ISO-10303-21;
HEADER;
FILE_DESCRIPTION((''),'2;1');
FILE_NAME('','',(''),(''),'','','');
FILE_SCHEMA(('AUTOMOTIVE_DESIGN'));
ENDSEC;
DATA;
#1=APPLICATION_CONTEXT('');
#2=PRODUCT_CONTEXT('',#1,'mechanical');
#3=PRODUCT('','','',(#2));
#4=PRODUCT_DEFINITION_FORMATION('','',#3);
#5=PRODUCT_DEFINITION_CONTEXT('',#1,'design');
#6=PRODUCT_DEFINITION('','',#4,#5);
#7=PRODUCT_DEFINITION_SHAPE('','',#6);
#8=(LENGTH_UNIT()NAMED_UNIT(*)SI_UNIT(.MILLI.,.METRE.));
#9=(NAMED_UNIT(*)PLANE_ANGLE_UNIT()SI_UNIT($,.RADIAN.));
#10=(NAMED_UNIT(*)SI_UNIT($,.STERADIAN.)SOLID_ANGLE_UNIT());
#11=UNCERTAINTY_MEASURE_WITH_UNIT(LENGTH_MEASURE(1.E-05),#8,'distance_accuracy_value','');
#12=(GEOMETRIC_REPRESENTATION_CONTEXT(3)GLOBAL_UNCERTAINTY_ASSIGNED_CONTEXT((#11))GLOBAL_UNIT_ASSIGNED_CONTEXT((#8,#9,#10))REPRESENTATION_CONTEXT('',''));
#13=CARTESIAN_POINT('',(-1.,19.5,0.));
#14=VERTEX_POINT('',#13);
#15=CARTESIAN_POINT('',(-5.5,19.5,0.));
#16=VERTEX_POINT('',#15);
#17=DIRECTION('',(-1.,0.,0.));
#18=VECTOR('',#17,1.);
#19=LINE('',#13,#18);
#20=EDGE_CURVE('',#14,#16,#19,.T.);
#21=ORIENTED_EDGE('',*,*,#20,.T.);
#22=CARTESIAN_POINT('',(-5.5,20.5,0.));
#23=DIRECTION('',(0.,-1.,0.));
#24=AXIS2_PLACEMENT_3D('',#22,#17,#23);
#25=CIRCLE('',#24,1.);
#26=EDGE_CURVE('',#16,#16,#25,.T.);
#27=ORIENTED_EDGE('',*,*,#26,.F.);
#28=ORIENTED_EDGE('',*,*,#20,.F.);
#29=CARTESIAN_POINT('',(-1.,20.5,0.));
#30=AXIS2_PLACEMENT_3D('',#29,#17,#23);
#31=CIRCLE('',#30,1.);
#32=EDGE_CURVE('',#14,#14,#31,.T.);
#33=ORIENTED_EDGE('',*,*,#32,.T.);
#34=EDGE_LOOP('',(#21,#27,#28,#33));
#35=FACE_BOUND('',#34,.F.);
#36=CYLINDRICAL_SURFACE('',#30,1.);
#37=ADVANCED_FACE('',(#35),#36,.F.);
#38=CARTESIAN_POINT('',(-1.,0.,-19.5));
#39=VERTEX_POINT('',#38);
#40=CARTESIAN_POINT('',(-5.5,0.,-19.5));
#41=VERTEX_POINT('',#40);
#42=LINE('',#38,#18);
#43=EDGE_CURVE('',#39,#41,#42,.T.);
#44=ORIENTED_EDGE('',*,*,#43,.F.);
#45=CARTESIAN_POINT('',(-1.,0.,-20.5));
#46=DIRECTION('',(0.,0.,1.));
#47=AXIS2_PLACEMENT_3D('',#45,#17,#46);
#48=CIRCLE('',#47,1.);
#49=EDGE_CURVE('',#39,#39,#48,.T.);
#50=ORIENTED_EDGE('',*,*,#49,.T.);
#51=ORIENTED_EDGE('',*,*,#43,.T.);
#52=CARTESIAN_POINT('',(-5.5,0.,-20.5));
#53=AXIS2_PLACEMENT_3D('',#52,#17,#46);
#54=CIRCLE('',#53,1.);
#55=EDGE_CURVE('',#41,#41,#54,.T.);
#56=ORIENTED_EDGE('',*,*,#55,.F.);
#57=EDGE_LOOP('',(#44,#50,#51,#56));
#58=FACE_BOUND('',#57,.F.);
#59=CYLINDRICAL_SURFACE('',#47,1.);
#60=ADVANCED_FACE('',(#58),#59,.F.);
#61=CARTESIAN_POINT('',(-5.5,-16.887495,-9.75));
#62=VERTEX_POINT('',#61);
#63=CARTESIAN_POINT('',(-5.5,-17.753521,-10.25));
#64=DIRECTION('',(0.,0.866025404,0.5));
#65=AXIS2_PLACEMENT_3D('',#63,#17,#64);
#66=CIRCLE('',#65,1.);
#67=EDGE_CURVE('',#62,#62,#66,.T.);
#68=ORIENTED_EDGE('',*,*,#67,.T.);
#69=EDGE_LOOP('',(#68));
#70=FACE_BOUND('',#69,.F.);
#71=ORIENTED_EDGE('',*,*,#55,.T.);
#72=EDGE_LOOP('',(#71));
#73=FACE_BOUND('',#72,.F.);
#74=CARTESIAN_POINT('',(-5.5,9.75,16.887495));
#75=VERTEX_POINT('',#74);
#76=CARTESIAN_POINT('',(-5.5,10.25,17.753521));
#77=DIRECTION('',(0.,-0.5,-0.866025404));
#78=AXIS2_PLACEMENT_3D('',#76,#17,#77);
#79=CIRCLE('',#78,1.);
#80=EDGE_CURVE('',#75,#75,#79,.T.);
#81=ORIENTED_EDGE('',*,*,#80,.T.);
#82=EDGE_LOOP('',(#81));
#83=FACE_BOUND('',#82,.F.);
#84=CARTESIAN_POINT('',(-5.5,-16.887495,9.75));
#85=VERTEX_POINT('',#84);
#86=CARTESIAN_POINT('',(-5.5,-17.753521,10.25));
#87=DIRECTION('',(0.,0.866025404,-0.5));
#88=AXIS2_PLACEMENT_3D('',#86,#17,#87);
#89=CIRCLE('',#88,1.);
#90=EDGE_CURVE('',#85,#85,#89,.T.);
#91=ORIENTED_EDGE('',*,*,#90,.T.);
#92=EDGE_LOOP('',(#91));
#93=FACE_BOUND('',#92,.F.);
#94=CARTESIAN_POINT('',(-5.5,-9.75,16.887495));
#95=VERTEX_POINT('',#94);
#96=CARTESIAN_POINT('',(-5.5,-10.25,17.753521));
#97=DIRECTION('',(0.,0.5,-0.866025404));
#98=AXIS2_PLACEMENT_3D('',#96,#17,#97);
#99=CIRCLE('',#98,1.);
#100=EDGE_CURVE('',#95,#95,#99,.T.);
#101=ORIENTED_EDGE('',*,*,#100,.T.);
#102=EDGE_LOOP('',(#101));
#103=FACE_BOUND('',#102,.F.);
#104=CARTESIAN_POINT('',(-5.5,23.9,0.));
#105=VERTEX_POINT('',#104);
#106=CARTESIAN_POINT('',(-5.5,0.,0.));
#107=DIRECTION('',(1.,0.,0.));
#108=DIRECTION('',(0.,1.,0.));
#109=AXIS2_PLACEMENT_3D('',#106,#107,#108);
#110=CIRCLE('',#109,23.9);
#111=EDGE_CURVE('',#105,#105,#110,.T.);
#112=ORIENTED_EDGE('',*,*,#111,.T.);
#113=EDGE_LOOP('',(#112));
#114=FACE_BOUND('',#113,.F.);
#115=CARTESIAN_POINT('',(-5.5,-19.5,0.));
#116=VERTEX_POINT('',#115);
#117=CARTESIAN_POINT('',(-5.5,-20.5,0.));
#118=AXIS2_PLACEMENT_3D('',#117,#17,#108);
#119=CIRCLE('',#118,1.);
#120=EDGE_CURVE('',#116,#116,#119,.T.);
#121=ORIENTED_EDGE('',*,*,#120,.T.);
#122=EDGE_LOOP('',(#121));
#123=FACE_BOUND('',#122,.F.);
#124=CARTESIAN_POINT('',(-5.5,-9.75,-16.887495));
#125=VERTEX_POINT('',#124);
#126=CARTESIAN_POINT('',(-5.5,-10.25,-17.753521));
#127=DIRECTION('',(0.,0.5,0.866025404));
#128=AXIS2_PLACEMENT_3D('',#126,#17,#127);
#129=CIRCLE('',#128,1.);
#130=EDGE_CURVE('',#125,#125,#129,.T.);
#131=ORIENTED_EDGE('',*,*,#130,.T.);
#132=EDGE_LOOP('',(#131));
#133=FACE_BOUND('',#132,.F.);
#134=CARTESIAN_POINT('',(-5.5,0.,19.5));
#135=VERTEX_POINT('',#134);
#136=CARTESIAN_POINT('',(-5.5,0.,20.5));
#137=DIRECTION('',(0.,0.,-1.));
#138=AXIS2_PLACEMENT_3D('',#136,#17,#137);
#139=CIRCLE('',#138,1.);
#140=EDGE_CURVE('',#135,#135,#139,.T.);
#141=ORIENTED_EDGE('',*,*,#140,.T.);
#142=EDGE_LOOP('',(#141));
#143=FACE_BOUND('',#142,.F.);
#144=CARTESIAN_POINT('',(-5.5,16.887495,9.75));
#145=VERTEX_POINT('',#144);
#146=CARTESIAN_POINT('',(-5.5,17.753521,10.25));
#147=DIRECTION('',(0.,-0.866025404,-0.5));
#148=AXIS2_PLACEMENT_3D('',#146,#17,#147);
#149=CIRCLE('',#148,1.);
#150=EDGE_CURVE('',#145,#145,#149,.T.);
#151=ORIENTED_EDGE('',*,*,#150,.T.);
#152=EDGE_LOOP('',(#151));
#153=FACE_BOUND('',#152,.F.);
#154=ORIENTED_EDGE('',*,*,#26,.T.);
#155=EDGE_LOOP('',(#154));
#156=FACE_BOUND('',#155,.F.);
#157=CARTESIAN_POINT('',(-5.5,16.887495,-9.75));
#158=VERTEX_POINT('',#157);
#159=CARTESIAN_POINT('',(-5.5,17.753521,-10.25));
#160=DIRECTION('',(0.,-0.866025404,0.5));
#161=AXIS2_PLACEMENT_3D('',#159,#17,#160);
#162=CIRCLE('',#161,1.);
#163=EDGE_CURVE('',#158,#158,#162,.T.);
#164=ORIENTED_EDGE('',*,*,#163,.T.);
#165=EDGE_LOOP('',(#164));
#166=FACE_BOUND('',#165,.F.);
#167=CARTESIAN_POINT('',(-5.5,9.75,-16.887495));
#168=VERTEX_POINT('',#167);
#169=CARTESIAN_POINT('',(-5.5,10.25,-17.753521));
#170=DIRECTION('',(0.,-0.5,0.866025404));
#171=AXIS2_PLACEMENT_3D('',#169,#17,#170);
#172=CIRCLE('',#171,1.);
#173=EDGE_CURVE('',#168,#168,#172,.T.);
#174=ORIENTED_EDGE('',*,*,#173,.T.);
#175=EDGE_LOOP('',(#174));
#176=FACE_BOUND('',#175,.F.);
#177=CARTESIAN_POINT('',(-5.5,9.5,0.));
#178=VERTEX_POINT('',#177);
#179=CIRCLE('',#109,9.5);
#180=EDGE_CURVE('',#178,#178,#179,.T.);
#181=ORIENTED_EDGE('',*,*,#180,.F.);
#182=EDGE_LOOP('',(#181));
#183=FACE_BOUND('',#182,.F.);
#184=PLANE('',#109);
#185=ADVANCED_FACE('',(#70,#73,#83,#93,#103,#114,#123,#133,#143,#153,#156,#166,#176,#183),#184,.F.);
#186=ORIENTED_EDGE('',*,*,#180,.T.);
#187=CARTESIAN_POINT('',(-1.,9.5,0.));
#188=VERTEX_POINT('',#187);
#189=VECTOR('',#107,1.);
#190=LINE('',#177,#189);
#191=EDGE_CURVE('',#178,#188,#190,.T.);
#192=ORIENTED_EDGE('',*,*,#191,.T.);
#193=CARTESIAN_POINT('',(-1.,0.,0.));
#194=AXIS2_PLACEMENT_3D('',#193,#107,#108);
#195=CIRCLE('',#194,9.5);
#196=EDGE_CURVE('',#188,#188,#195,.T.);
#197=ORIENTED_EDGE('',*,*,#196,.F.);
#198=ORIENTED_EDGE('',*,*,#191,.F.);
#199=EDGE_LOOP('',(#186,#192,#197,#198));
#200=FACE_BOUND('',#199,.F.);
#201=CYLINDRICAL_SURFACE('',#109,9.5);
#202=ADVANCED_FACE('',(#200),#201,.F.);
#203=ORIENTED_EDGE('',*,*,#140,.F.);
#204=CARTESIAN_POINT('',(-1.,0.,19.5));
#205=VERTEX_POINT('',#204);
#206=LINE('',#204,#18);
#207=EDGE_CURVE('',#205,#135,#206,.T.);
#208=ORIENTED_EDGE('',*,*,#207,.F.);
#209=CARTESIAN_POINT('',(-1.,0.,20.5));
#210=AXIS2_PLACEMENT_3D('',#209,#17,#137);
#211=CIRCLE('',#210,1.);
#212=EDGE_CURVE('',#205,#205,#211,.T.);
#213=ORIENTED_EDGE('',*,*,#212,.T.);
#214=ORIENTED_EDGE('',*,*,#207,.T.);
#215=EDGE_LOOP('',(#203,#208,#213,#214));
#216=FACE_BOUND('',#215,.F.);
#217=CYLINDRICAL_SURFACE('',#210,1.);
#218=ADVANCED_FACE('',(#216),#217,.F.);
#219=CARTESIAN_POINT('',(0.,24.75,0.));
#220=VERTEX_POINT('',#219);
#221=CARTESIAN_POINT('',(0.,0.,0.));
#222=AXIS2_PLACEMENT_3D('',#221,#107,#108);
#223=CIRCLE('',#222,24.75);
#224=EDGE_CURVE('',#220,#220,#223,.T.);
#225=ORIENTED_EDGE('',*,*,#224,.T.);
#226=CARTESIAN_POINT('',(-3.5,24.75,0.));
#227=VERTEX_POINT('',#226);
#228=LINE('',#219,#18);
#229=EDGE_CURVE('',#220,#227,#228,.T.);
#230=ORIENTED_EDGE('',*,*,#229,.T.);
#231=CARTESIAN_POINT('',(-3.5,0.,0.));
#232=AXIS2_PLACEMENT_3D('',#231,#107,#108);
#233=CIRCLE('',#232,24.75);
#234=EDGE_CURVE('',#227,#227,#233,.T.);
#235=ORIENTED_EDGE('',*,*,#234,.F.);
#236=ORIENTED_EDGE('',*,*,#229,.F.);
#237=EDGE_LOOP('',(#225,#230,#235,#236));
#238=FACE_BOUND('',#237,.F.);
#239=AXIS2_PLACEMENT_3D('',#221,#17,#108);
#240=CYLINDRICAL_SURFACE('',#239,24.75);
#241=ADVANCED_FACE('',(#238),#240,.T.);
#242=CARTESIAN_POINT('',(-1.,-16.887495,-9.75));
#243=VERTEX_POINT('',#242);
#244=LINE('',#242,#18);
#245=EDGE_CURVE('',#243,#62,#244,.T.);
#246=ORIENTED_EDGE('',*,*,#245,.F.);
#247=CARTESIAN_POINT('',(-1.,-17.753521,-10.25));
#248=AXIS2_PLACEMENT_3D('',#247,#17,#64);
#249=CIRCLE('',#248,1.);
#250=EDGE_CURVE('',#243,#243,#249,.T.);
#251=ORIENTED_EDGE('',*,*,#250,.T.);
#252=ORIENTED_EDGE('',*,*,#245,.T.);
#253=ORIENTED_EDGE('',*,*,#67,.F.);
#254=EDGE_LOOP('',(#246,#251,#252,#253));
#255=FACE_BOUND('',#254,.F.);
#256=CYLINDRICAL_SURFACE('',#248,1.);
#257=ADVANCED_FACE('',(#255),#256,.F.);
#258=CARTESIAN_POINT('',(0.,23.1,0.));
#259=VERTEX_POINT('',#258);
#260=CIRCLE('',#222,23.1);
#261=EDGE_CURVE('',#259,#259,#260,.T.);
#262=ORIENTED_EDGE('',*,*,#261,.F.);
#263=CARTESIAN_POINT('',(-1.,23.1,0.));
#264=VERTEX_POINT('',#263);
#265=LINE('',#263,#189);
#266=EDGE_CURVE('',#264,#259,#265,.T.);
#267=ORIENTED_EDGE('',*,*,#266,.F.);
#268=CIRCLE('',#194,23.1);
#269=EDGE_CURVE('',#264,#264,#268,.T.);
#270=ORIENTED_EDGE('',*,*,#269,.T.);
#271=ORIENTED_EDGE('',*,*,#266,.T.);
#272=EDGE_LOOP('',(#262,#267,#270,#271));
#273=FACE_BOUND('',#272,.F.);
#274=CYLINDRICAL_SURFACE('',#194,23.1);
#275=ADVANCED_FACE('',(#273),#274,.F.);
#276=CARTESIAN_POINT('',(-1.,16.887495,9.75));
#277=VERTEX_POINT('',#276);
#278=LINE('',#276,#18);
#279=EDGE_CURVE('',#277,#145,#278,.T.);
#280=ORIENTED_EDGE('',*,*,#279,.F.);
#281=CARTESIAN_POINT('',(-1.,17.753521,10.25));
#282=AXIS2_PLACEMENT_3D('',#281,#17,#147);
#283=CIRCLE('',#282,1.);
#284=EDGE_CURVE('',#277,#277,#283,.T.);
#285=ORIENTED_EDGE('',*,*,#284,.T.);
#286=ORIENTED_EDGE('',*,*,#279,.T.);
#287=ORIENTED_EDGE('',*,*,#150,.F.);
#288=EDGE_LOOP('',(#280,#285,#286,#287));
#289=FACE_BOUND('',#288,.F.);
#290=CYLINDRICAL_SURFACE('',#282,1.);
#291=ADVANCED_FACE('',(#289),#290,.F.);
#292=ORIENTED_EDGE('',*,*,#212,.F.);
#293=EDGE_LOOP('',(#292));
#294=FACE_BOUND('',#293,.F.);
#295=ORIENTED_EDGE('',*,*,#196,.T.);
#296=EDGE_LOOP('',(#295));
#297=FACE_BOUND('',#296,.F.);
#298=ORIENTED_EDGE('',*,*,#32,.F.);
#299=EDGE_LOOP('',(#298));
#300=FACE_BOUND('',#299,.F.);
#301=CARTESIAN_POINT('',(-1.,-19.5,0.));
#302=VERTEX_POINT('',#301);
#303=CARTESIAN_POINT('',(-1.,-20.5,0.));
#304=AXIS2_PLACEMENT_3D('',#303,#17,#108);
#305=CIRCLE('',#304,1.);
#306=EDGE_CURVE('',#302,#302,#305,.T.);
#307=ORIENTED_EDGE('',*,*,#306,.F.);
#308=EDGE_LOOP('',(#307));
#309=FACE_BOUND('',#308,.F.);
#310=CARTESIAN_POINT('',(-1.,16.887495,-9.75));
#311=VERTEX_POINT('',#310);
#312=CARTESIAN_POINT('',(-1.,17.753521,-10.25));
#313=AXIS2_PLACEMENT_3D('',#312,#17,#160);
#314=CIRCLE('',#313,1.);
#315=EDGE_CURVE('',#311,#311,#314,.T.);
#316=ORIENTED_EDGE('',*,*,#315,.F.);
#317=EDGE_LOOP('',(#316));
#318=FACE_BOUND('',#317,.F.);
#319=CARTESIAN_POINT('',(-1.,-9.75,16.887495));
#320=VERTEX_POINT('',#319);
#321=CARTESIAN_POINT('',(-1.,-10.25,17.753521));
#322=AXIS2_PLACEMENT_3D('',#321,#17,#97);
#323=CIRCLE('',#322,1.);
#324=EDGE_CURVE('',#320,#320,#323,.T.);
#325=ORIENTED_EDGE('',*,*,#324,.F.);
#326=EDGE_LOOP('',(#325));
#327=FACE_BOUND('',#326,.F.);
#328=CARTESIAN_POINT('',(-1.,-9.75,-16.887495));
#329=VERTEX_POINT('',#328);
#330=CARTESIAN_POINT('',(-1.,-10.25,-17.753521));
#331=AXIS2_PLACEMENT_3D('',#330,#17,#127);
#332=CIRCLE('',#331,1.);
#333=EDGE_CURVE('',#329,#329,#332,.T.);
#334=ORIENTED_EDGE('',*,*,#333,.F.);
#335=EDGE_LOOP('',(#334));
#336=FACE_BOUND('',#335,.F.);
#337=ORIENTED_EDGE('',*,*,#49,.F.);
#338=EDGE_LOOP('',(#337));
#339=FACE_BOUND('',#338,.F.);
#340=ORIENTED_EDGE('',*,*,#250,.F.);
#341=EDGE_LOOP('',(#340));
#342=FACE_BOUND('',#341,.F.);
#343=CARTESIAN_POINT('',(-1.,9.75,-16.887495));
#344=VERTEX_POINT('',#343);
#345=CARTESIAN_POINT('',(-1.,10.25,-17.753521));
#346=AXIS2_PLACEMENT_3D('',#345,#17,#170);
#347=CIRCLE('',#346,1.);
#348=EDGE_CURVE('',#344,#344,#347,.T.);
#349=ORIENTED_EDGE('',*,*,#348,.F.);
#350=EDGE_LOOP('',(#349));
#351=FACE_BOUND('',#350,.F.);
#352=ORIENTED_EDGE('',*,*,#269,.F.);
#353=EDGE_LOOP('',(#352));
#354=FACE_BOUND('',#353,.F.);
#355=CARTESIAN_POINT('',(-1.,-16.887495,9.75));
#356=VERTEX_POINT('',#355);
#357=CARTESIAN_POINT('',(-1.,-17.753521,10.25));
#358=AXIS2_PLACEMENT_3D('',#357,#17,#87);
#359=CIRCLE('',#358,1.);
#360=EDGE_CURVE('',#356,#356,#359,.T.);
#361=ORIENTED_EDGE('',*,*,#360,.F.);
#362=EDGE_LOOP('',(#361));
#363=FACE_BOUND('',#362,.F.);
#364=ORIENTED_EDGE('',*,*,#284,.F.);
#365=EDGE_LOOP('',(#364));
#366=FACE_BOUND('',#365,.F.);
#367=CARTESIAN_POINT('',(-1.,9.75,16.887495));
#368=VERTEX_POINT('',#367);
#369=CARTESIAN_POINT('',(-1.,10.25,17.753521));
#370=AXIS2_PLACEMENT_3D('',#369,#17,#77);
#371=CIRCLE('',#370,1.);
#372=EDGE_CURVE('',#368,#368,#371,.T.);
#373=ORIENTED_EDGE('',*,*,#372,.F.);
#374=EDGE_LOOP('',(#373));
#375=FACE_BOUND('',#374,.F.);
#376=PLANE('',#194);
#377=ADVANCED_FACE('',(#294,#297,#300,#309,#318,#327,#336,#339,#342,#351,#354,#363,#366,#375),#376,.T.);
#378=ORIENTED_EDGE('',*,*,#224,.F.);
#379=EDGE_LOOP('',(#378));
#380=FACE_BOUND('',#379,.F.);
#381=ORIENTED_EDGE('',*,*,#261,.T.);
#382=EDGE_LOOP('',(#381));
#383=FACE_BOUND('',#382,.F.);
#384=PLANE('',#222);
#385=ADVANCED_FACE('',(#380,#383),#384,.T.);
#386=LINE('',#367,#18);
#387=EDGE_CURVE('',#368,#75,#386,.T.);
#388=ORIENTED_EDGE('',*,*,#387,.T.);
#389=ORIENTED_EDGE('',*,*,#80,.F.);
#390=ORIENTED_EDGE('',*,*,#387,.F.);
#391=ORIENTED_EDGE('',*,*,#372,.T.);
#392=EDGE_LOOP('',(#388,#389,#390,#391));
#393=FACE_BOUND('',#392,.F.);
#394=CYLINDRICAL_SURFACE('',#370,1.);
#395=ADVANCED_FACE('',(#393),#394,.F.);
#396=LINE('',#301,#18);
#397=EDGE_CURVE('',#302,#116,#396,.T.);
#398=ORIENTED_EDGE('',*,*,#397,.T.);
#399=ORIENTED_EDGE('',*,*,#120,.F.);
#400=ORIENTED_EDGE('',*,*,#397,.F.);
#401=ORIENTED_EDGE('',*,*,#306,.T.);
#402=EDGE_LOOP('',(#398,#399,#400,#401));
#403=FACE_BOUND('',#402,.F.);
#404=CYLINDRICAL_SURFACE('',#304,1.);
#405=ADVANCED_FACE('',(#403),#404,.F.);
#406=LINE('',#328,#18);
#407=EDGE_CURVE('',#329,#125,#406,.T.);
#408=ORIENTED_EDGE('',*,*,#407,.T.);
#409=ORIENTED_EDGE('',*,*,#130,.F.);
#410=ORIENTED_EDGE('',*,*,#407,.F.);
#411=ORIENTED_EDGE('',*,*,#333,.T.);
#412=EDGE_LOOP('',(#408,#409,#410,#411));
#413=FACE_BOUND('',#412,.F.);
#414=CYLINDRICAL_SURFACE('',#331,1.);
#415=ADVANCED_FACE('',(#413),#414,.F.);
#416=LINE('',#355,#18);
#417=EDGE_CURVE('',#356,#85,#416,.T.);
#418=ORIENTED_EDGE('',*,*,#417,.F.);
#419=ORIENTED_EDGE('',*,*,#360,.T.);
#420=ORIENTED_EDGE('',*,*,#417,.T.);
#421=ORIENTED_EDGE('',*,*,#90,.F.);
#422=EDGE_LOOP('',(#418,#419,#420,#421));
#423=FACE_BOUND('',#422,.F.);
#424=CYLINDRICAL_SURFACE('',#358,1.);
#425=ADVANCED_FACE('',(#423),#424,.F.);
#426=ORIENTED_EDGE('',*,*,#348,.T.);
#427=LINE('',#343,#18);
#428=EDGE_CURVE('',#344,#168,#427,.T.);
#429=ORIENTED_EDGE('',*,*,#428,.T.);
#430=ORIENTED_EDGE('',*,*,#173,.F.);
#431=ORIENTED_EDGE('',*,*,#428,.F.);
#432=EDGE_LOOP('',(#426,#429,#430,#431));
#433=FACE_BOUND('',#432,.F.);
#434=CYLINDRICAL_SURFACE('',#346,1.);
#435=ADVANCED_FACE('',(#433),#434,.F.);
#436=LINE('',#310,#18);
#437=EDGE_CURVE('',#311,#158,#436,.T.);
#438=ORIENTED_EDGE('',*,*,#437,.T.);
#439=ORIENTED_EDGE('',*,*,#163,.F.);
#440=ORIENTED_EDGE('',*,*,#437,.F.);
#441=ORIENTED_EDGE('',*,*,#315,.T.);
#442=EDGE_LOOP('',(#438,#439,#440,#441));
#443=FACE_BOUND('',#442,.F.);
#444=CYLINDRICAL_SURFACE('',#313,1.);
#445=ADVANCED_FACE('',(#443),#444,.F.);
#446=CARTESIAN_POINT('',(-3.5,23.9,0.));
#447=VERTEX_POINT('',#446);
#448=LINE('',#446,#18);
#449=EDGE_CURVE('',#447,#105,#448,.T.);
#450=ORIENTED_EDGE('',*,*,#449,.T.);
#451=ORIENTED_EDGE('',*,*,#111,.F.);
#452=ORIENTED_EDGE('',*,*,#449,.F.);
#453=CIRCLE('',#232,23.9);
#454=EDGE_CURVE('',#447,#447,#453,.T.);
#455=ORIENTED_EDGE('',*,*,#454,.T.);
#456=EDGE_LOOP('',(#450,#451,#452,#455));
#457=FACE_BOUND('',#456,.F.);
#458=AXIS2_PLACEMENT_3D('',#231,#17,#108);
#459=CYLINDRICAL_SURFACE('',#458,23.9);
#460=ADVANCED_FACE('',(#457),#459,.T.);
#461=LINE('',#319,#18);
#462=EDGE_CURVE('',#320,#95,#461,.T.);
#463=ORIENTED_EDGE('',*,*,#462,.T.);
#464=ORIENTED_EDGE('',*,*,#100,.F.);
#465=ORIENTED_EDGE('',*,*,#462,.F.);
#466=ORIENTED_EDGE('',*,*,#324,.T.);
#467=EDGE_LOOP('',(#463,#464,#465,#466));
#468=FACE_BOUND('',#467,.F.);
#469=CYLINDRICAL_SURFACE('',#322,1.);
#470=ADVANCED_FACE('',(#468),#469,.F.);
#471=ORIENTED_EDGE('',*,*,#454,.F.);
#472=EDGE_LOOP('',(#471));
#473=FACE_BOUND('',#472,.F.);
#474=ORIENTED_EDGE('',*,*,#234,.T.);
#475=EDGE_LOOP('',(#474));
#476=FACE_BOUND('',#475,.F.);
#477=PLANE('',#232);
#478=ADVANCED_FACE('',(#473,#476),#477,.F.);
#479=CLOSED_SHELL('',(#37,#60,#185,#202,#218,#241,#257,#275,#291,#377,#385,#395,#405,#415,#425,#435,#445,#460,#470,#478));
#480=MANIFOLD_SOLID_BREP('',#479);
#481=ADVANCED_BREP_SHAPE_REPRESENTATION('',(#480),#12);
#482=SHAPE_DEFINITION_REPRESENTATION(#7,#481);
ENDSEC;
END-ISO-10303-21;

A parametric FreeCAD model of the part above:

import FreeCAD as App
import Part
import Sketcher

V = App.Vector


def add_polygon(sketch, points):
    """Adds a closed chain of lines whose ends are joined by coincident constraints."""
    first, n = sketch.GeometryCount, len(points)
    for a, b in zip(points, points[1:] + points[:1]):
        sketch.addGeometry(Part.LineSegment(App.Vector(*a, 0), App.Vector(*b, 0)), False)
    for i in range(n):
        sketch.addConstraint(Sketcher.Constraint("Coincident", first + i, 2, first + (i + 1) % n, 1))

doc = App.newDocument("Part")
body = doc.addObject("PartDesign::Body", "Body")

# Sketch on XY plane
sketch1 = doc.addObject("Sketcher::SketchObject", "Sketch")
body.addObject(sketch1)
sketch1.AttachmentSupport = (doc.XY_Plane, [""])
sketch1.MapMode = "FlatFace"
add_polygon(sketch1, [(-5.5, 9.5), (-1, 9.5), (-1, 23.1), (0, 23.1), (0, 24.75), (-3.5, 24.75), (-3.5, 23.9), (-5.5, 23.9)])  # lines 0-7
sketch1.addConstraint([
    Sketcher.Constraint("Horizontal", 0),
    Sketcher.Constraint("Vertical", 1),
    Sketcher.Constraint("Horizontal", 2),
    Sketcher.Constraint("Vertical", 3),
    Sketcher.Constraint("Horizontal", 4),
    Sketcher.Constraint("Vertical", 5),
    Sketcher.Constraint("Horizontal", 6),
    Sketcher.Constraint("Vertical", 7),
    Sketcher.Constraint("PointOnObject", 2, 2, -2),
    Sketcher.Constraint("DistanceX", 2, 1, 2, 2, 1.0),
    Sketcher.Constraint("DistanceX", 6, 2, 6, 1, 2.0),
    Sketcher.Constraint("DistanceX", 6, 2, -1, 1, 5.5),
    Sketcher.Constraint("DistanceY", 1, 1, 1, 2, 13.6),
    Sketcher.Constraint("DistanceY", 7, 2, 7, 1, 14.4),
    Sketcher.Constraint("DistanceY", 3, 1, 3, 2, 1.65),
    Sketcher.Constraint("DistanceY", -1, 1, 0, 2, 9.5),
])
revolution = doc.addObject("PartDesign::Revolution", "Revolution")
body.addObject(revolution)
revolution.Profile = sketch1
revolution.ReferenceAxis = (sketch1, ["H_Axis"])
revolution.Angle = 360

# Sketch on YZ plane
sketch2 = doc.addObject("Sketcher::SketchObject", "Sketch001")
body.addObject(sketch2)
sketch2.AttachmentSupport = (doc.YZ_Plane, [""])
sketch2.MapMode = "FlatFace"
sketch2.AttachmentOffset = App.Placement(V(0, 0, -1), App.Rotation())
sketch2.addGeometry(Part.Circle(V(0, 20.5, 0), V(0, 0, 1), 1), False)
sketch2.addConstraint([
    Sketcher.Constraint("PointOnObject", 0, 3, -2),
    Sketcher.Constraint("Diameter", 0, 2.0),
    Sketcher.Constraint("DistanceY", -1, 1, 0, 3, 20.5),
])
doc.recompute()
hole = doc.addObject("PartDesign::Hole", "Hole")
body.addObject(hole)
hole.Profile = sketch2
hole.ThreadType = "None"
hole.Diameter = 2
hole.DepthType = "ThroughAll"
doc.recompute()

polarpattern = doc.addObject("PartDesign::PolarPattern", "PolarPattern")
body.addObject(polarpattern)
polarpattern.Originals = [hole]
polarpattern.Axis = (doc.X_Axis, [""])
polarpattern.Angle = 360
polarpattern.Occurrences = 12
body.Tip = polarpattern

doc.recompute()
